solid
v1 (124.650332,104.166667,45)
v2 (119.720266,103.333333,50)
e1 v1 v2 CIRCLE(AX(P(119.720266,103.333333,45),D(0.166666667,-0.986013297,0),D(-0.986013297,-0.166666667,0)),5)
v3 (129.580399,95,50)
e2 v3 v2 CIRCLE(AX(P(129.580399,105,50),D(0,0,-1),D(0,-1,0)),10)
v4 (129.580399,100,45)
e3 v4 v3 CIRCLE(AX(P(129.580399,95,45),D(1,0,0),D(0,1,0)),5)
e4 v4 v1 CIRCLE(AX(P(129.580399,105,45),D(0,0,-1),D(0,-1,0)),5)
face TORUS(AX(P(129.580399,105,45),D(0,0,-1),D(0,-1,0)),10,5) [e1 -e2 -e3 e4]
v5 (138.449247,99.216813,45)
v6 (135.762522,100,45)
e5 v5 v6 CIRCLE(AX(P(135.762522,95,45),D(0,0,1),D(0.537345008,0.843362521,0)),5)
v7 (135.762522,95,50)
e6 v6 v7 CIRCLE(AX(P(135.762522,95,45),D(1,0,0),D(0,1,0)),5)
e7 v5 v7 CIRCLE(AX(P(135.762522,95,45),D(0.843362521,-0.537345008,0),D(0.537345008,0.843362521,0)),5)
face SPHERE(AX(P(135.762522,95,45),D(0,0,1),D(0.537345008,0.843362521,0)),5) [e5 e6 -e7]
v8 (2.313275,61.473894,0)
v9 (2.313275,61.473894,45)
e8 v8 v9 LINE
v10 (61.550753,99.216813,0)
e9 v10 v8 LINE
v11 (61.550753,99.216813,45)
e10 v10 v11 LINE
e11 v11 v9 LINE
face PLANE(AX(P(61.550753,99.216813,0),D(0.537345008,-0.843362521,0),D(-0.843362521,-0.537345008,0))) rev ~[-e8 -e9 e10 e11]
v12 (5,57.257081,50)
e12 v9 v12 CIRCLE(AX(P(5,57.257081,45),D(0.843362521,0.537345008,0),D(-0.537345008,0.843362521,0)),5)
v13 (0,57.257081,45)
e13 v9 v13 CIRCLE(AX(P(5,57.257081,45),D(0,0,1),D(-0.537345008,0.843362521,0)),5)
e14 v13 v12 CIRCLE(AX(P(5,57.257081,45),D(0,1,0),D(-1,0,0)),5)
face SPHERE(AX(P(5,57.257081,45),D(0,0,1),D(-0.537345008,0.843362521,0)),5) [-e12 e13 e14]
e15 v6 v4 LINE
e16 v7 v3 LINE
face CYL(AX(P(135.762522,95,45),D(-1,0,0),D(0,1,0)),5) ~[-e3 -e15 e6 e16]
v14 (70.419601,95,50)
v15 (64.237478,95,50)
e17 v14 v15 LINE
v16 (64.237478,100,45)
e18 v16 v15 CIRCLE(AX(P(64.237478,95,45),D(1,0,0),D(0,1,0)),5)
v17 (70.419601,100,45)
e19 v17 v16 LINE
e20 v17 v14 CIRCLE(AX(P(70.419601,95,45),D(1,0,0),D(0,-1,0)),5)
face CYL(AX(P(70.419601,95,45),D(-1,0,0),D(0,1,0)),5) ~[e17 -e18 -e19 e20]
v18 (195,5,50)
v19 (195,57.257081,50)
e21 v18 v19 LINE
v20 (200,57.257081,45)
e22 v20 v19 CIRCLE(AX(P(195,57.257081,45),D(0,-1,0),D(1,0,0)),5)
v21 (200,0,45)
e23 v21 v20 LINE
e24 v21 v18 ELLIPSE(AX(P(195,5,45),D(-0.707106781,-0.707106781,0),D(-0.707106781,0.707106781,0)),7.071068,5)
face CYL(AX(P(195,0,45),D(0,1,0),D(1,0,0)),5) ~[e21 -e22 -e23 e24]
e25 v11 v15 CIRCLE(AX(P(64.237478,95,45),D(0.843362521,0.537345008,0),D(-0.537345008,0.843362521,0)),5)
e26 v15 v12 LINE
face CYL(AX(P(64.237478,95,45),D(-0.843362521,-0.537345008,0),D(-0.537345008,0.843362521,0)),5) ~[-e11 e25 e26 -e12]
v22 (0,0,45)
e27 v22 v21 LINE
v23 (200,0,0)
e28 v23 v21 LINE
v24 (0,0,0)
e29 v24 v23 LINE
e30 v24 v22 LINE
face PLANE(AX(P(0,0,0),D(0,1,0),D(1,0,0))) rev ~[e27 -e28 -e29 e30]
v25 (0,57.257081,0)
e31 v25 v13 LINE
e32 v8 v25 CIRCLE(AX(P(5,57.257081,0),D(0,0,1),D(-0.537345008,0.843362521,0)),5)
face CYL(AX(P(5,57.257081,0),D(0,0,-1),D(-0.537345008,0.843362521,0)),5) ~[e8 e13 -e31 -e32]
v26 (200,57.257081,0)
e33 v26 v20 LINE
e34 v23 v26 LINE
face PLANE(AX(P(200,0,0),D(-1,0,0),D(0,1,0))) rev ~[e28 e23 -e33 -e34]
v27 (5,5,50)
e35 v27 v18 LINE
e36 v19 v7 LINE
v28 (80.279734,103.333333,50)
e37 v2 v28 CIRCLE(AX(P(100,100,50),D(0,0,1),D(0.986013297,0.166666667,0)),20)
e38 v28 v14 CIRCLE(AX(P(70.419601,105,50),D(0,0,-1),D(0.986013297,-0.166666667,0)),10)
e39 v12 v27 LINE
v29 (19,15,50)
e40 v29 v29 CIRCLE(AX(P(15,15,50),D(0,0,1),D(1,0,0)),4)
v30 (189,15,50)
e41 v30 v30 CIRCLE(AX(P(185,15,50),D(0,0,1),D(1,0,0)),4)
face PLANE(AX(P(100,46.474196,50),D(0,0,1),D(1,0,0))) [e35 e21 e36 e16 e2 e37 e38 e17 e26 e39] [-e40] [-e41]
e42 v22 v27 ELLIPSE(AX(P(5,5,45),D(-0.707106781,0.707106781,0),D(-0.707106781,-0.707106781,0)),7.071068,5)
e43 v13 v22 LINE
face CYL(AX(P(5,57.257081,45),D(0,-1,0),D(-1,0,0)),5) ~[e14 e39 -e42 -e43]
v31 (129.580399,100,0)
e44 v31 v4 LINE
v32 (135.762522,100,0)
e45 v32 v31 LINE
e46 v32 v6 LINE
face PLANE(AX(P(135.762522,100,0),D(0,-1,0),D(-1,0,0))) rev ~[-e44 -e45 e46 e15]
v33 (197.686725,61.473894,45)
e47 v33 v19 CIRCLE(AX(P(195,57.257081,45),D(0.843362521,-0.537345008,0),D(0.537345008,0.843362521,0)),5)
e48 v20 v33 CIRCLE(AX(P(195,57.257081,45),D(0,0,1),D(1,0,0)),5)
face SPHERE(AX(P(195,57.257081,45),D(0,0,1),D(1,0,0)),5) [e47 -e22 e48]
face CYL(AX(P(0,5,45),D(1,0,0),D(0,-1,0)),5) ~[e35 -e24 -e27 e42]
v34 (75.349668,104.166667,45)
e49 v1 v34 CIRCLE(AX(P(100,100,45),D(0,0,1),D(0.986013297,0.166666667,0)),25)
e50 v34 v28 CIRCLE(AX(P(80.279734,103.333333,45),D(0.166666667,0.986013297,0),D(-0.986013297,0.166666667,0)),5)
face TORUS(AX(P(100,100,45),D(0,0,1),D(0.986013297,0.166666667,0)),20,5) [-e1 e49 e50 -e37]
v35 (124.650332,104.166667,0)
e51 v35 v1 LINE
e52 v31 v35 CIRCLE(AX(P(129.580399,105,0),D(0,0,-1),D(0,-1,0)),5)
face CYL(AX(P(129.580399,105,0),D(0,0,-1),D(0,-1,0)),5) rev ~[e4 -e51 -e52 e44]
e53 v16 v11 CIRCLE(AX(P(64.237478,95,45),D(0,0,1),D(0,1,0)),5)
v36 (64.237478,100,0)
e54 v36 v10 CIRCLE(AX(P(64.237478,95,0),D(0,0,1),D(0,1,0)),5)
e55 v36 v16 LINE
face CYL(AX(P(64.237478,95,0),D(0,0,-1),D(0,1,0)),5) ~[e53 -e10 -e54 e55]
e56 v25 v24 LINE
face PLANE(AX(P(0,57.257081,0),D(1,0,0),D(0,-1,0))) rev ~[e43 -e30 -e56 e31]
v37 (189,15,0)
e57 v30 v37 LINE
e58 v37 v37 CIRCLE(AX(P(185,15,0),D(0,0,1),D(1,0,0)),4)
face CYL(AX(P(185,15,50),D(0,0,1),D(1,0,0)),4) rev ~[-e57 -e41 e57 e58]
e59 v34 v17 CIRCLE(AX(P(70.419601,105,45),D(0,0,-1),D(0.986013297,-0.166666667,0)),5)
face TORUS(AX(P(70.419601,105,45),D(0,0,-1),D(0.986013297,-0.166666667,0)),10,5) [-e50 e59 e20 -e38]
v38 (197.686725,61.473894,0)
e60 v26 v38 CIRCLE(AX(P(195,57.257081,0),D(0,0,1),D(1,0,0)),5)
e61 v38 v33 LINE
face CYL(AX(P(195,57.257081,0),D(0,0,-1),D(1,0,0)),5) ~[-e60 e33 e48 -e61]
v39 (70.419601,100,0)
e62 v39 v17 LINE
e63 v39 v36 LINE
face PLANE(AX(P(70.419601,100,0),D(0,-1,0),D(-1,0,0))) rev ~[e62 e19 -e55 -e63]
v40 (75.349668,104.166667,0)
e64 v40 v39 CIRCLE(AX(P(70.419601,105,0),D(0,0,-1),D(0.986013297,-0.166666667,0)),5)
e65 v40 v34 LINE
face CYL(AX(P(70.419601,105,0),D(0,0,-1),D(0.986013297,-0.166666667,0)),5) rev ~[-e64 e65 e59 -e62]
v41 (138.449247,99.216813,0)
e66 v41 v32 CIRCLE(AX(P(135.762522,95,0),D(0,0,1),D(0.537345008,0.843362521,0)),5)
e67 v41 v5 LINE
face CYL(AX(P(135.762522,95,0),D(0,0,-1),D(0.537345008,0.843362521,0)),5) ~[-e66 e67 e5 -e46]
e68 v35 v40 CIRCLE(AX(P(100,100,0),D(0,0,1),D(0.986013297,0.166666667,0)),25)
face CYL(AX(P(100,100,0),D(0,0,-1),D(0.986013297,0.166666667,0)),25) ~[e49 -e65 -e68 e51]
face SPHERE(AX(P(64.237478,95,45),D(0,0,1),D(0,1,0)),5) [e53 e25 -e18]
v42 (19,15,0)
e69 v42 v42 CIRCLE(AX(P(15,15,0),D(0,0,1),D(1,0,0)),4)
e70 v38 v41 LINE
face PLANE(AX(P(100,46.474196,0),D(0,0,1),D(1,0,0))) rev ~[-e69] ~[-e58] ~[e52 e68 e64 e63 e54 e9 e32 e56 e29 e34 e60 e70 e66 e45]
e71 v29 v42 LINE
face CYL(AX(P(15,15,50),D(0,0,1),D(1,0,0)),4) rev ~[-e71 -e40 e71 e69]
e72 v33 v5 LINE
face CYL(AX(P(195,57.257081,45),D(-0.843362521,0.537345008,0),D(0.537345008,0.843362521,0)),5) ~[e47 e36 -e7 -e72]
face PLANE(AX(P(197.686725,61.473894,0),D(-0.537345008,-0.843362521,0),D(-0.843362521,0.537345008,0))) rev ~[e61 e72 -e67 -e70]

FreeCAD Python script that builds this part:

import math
import FreeCAD as App
import Part
import Sketcher
from FreeCAD import Vector


def edges_at(feature, points):
    """Names of the edges that pass closest to the given points."""
    edges = feature.Shape.Edges
    near = lambda p: min(range(len(edges)), key=lambda i: edges[i].distToShape(Part.Vertex(*p))[0])
    return sorted({f"Edge{near(p) + 1}" for p in points})

doc = App.newDocument("Part")
params = doc.addObject("Spreadsheet::Sheet", "Params")
for row, (alias, value) in enumerate([
    ("sketch1_radius", "5 mm"),
    ("sketch1_radius2", "25 mm"),
    ("sketch1_width", "200 mm"),
    ("pad1_length", "50 mm"),
    ("fillet_radius", "5 mm"),
    ("sketch2_diameter", "8 mm"),
], start=1):
    params.set(f"A{row}", alias)
    params.set(f"B{row}", "=" + value)
    params.setAlias(f"B{row}", alias)

body = doc.addObject("PartDesign::Body", "Body")

# Sketch on XY plane
sketch1 = doc.addObject("Sketcher::SketchObject", "Sketch")
body.addObject(sketch1)
sketch1.AttachmentSupport = (doc.XY_Plane, [""])
sketch1.MapMode = "FlatFace"
sketch1.addGeometry([
    Part.LineSegment(Vector(0, 57.257081, 0), Vector(0, 0, 0)),  # 0
    Part.LineSegment(Vector(0, 0, 0), Vector(200, 0, 0)),  # 1
    Part.LineSegment(Vector(200, 0, 0), Vector(200, 57.257081, 0)),  # 2
    Part.ArcOfCircle(Part.Circle(Vector(195, 57.257081, 0), Vector(0, 0, 1), 5), math.radians(0), math.radians(57.496916)),  # 3
    Part.LineSegment(Vector(197.686725, 61.473894, 0), Vector(138.449247, 99.216813, 0)),  # 4
    Part.ArcOfCircle(Part.Circle(Vector(135.762522, 95, 0), Vector(0, 0, 1), 5), math.radians(57.496916), math.radians(90)),  # 5
    Part.LineSegment(Vector(135.762522, 100, 0), Vector(129.580399, 100, 0)),  # 6
    Part.ArcOfCircle(Part.Circle(Vector(129.580399, 105, 0), Vector(0, 0, 1), 5), math.radians(-170.405932), math.radians(-90)),  # 7
    Part.ArcOfCircle(Part.Circle(Vector(100, 100, 0), Vector(0, 0, 1), 25), math.radians(9.594068), math.radians(170.405932)),  # 8
    Part.ArcOfCircle(Part.Circle(Vector(70.419601, 105, 0), Vector(0, 0, 1), 5), math.radians(-90), math.radians(-9.594068)),  # 9
    Part.LineSegment(Vector(70.419601, 100, 0), Vector(64.237478, 100, 0)),  # 10
    Part.ArcOfCircle(Part.Circle(Vector(64.237478, 95, 0), Vector(0, 0, 1), 5), math.radians(90), math.radians(122.503084)),  # 11
    Part.LineSegment(Vector(61.550753, 99.216813, 0), Vector(2.313275, 61.473894, 0)),  # 12
    Part.ArcOfCircle(Part.Circle(Vector(5, 57.257081, 0), Vector(0, 0, 1), 5), math.radians(122.503084), math.radians(180)),  # 13
], False)
sketch1.addConstraint([
    Sketcher.Constraint("Coincident", 0, 2, 1, 1),
    Sketcher.Constraint("Coincident", 1, 2, 2, 1),
    Sketcher.Constraint("Tangent", 2, 2, 3, 1),
    Sketcher.Constraint("Tangent", 3, 2, 4, 1),
    Sketcher.Constraint("Tangent", 4, 2, 5, 1),
    Sketcher.Constraint("Tangent", 5, 2, 6, 1),
    Sketcher.Constraint("Tangent", 6, 2, 7, 2),
    Sketcher.Constraint("Tangent", 7, 1, 8, 1),
    Sketcher.Constraint("Tangent", 8, 2, 9, 2),
    Sketcher.Constraint("Tangent", 9, 1, 10, 1),
    Sketcher.Constraint("Tangent", 10, 2, 11, 1),
    Sketcher.Constraint("Tangent", 11, 2, 12, 1),
    Sketcher.Constraint("Tangent", 12, 2, 13, 1),
    Sketcher.Constraint("Tangent", 13, 2, 0, 1),
    Sketcher.Constraint("Vertical", 0),
    Sketcher.Constraint("Horizontal", 1),
    Sketcher.Constraint("Vertical", 2),
    Sketcher.Constraint("Horizontal", 6),
    Sketcher.Constraint("Horizontal", 10),
    Sketcher.Constraint("Coincident", 0, 2, -1, 1),
    Sketcher.Constraint("Equal", 3, 5),
    Sketcher.Constraint("Equal", 5, 7),
    Sketcher.Constraint("Equal", 7, 9),
    Sketcher.Constraint("Equal", 9, 11),
    Sketcher.Constraint("Equal", 11, 13),
    Sketcher.Constraint("Horizontal", 7, 3, 9, 3),
    Sketcher.Constraint("Horizontal", 3, 3, 13, 3),
    Sketcher.Constraint("Horizontal", 8, 3, 5, 2),
    Sketcher.Constraint("Horizontal", 4, 2, 11, 2),
    Sketcher.Constraint("Equal", 6, 10),
    Sketcher.Constraint("Radius", 3, 5.0),
    Sketcher.Constraint("Radius", 8, 25.0),
    Sketcher.Constraint("DistanceX", 1, 1, 1, 2, 200.0),
    Sketcher.Constraint("DistanceY", -1, 1, 5, 3, 95.0),
    Sketcher.Constraint("DistanceY", 0, 2, 0, 1, 57.257081),
    Sketcher.Constraint("DistanceX", 6, 2, 6, 1, 6.182123),
])
sketch1.setExpression("Constraints[30]", "Params.sketch1_radius")
sketch1.setExpression("Constraints[31]", "Params.sketch1_radius2")
sketch1.setExpression("Constraints[32]", "Params.sketch1_width")
pad1 = doc.addObject("PartDesign::Pad", "Pad")
body.addObject(pad1)
pad1.Profile = sketch1
pad1.setExpression("Length", "Params.pad1_length")
doc.recompute()

fillet = doc.addObject("PartDesign::Fillet", "Fillet")
body.addObject(fillet)
fillet.Base = (pad1, edges_at(pad1, [
    (0, 28.629, 50),
    (100, 0, 50),
    (200, 28.629, 50),
    (199.384, 59.662, 50),
    (168.068, 80.345, 50),
    (137.162, 99.8, 50),
    (132.671, 100, 50),
    (126.353, 101.181, 50),
    (100, 125, 50),
    (73.647, 101.181, 50),
    (67.329, 100, 50),
    (62.838, 99.8, 50),
    (31.932, 80.345, 50),
    (0.616, 59.662, 50),
]))
fillet.setExpression("Radius", "Params.fillet_radius")

# Sketch on XY plane
sketch2 = doc.addObject("Sketcher::SketchObject", "Sketch001")
body.addObject(sketch2)
sketch2.AttachmentSupport = (doc.XY_Plane, [""])
sketch2.MapMode = "FlatFace"
sketch2.AttachmentOffset = App.Placement(Vector(0, 0, 50), App.Rotation())
sketch2.addGeometry([
    Part.Circle(Vector(185, 15, 0), Vector(0, 0, 1), 4),
    Part.Circle(Vector(15, 15, 0), Vector(0, 0, 1), 4),
], False)
sketch2.addConstraint([
    Sketcher.Constraint("Equal", 0, 1),
    Sketcher.Constraint("Horizontal", 0, 3, 1, 3),
    Sketcher.Constraint("Diameter", 0, 8.0),
    Sketcher.Constraint("DistanceX", -1, 1, 0, 3, 185.0),
    Sketcher.Constraint("DistanceY", -1, 1, 0, 3, 15.0),
    Sketcher.Constraint("DistanceX", -1, 1, 1, 3, 15.0),
])
sketch2.setExpression("Constraints[2]", "Params.sketch2_diameter")
pocket1 = doc.addObject("PartDesign::Pocket", "Pocket")
body.addObject(pocket1)
pocket1.Profile = sketch2
pocket1.Type = "ThroughAll"

doc.recompute()
